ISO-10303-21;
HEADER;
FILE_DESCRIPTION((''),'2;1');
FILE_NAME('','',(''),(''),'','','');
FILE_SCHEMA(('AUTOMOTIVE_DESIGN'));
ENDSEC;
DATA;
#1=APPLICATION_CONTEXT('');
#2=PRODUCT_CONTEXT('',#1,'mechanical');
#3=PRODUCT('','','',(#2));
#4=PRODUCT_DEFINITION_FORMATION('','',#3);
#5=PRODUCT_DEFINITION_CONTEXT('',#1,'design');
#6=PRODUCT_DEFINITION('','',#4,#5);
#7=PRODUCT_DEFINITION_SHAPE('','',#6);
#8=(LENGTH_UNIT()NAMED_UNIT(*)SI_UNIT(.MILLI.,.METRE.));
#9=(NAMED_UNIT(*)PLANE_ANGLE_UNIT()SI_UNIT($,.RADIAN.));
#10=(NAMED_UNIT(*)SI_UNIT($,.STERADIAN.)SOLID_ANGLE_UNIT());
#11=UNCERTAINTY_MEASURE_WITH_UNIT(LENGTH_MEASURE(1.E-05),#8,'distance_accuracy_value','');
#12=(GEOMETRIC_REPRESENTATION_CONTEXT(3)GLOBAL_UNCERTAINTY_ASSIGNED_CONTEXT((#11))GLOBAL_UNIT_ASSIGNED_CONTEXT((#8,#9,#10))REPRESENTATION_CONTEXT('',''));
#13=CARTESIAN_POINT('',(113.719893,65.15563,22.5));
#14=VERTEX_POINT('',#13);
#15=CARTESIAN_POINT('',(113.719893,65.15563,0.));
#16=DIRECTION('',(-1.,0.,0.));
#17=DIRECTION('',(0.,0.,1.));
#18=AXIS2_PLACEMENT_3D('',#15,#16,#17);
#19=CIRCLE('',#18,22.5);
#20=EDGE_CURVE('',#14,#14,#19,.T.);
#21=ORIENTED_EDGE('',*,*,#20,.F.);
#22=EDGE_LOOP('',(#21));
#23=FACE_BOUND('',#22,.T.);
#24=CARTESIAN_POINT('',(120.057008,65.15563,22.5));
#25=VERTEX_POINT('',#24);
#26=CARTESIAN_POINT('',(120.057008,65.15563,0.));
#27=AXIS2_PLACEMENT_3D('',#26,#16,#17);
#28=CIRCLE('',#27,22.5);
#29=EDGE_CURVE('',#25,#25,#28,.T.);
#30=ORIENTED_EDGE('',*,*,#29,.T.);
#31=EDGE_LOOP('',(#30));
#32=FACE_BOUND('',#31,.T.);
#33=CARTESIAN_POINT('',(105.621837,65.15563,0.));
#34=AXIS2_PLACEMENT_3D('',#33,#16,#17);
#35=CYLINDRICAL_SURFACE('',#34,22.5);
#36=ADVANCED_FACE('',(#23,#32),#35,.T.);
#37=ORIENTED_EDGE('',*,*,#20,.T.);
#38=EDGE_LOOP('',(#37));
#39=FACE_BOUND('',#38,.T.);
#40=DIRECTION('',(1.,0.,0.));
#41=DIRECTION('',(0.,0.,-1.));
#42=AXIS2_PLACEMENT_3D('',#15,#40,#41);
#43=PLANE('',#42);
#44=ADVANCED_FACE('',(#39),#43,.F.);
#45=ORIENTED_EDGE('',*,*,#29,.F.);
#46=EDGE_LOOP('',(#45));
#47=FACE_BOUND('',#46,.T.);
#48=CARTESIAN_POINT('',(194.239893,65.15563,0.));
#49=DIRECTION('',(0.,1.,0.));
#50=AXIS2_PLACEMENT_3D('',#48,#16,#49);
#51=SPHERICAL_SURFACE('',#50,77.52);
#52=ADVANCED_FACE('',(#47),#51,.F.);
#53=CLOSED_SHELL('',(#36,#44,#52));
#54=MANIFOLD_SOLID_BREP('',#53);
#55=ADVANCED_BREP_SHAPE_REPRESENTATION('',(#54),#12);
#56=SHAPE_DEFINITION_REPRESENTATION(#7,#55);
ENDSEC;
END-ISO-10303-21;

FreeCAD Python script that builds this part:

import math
import FreeCAD as App
import Part
import Sketcher

V = App.Vector

doc = App.newDocument("Part")
params = doc.addObject("Spreadsheet::Sheet", "Params")
for row, (alias, value) in enumerate([
    ("sketch1_width", "3 mm"),
    ("sketch1_radius", "77.52 mm"),
    ("sketch1_height", "22.5 mm"),
    ("revolution_angle", "360 deg"),
], start=1):
    params.set(f"A{row}", alias)
    params.set(f"B{row}", "=" + value)
    params.setAlias(f"B{row}", alias)

body = doc.addObject("PartDesign::Body", "Body")

# Sketch on XY plane
sketch1 = body.newObject("Sketcher::SketchObject", "Sketch")
sketch1.AttachmentSupport = (doc.getObject("XY_Plane"), [""])
sketch1.MapMode = "FlatFace"
sketch1.addGeometry([
    Part.LineSegment(V(113.7, 87.7, 0), V(113.7, 65.2, 0)),
    Part.LineSegment(V(113.7, 65.2, 0), V(116.7, 65.2, 0)),
    Part.ArcOfCircle(Part.Circle(V(194.2, 65.2, 0), V(0, 0, 1), 77.5), math.radians(163.13), math.radians(180)),
    Part.LineSegment(V(120.1, 87.7, 0), V(113.7, 87.7, 0)),
], False)
sketch1.addGeometry(Part.LineSegment(V(113.7, 65.2, 0), V(194.2, 65.2, 0)), True)  # axis
sketch1.addConstraint([
    Sketcher.Constraint("Coincident", 0, 2, 1, 1),
    Sketcher.Constraint("Coincident", 1, 2, 2, 2),
    Sketcher.Constraint("Coincident", 2, 1, 3, 1),
    Sketcher.Constraint("Coincident", 3, 2, 0, 1),
    Sketcher.Constraint("Vertical", 0),
    Sketcher.Constraint("Horizontal", 1),
    Sketcher.Constraint("Horizontal", 3),
    Sketcher.Constraint("Horizontal", 4),
    Sketcher.Constraint("Coincident", 4, 1, 0, 2),
    Sketcher.Constraint("Coincident", 4, 2, 2, 3),
    Sketcher.Constraint("DistanceX", 1, 1, 1, 2, 3.0),
    Sketcher.Constraint("Radius", 2, 77.52),
    Sketcher.Constraint("DistanceY", 0, 2, 0, 1, 22.5),
    Sketcher.Constraint("DistanceY", -1, 1, 2, 3, 65.15563),
    Sketcher.Constraint("DistanceX", -1, 1, 2, 1, 120.057008),
])
sketch1.setExpression("Constraints[10]", "Params.sketch1_width")
sketch1.setExpression("Constraints[11]", "Params.sketch1_radius")
sketch1.setExpression("Constraints[12]", "Params.sketch1_height")
revolution = body.newObject("PartDesign::Revolution", "Revolution")
revolution.Profile = sketch1
revolution.ReferenceAxis = (sketch1, ["Axis0"])
revolution.setExpression("Angle", "Params.revolution_angle")

doc.recompute()
